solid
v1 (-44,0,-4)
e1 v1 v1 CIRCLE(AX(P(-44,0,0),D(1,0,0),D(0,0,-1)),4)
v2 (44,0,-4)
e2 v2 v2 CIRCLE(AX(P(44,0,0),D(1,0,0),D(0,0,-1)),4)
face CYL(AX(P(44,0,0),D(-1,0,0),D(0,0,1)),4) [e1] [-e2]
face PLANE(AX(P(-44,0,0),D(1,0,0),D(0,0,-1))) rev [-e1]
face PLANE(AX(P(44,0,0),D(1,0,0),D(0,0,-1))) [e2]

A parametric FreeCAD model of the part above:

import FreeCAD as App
import Part
import Sketcher
from FreeCAD import Vector

doc = App.newDocument("Part")
params = doc.addObject("Spreadsheet::Sheet", "Params")
for row, (alias, value) in enumerate([
    ("sketch1_diameter", "8 mm"),
    ("pad1_length", "88 mm"),
], start=1):
    params.set(f"A{row}", alias)
    params.set(f"B{row}", "=" + value)
    params.setAlias(f"B{row}", alias)

body = doc.addObject("PartDesign::Body", "Body")

sketch1 = body.newObject("Sketcher::SketchObject", "Sketch")
sketch1.AttachmentSupport = (doc.getObject("YZ_Plane"), [""])
sketch1.MapMode = "FlatFace"
sketch1.addGeometry(Part.Circle(Vector(0, 0, 0), Vector(0, 0, 1), 4), False)
sketch1.addConstraint(Sketcher.Constraint("Coincident", 0, 3, -1, 1))
sketch1.addConstraint(Sketcher.Constraint("Diameter", 0, 8.0))
sketch1.setExpression("Constraints[1]", "Params.sketch1_diameter")
pad1 = body.newObject("PartDesign::Pad", "Pad")
pad1.Profile = sketch1
pad1.setExpression("Length", "Params.pad1_length")
pad1.Midplane = True

doc.recompute()
